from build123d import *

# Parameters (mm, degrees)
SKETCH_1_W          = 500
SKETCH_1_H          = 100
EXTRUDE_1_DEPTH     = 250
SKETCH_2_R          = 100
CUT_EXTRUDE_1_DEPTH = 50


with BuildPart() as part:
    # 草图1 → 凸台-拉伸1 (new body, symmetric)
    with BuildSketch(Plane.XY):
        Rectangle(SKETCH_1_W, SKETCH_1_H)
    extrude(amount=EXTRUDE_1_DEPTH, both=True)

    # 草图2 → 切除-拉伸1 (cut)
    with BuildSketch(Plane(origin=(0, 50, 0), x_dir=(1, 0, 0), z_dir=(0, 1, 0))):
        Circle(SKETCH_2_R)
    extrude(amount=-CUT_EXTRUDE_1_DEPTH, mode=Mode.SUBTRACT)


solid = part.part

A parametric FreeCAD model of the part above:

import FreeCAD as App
import Part
import Sketcher
from FreeCAD import Vector
Q = App.Units.Quantity

doc = App.newDocument("Part")
params = doc.addObject("Spreadsheet::Sheet", "Params")
for row, (alias, value) in enumerate([
    ("sketch1_width", "500 mm"),
    ("sketch1_height", "100 mm"),
    ("pad1_length", "500 mm"),
    ("sketch2_diameter", "200 mm"),
    ("pocket1_length", "50 mm"),
], start=1):
    params.set(f"A{row}", alias)
    params.set(f"B{row}", "=" + value)
    params.setAlias(f"B{row}", alias)

body = doc.addObject("PartDesign::Body", "Body")

# Sketch on XY plane
sketch1 = doc.addObject("Sketcher::SketchObject", "Sketch")
body.addObject(sketch1)
sketch1.AttachmentSupport = (doc.XY_Plane, [""])
sketch1.MapMode = "FlatFace"
sketch1.addGeometry(Part.LineSegment(Vector(-250, 50, 0), Vector(-250, -50, 0)), False)
sketch1.addGeometry(Part.LineSegment(Vector(-250, -50, 0), Vector(250, -50, 0)), False)
sketch1.addGeometry(Part.LineSegment(Vector(250, -50, 0), Vector(250, 50, 0)), False)
sketch1.addGeometry(Part.LineSegment(Vector(250, 50, 0), Vector(-250, 50, 0)), False)
sketch1.addConstraint(Sketcher.Constraint("Coincident", 0, 2, 1, 1))
sketch1.addConstraint(Sketcher.Constraint("Coincident", 1, 2, 2, 1))
sketch1.addConstraint(Sketcher.Constraint("Coincident", 2, 2, 3, 1))
sketch1.addConstraint(Sketcher.Constraint("Coincident", 3, 2, 0, 1))
sketch1.addConstraint(Sketcher.Constraint("Vertical", 0))
sketch1.addConstraint(Sketcher.Constraint("Horizontal", 1))
sketch1.addConstraint(Sketcher.Constraint("Vertical", 2))
sketch1.addConstraint(Sketcher.Constraint("Horizontal", 3))
sketch1.addConstraint(Sketcher.Constraint("Symmetric", 0, 2, 2, 2, -1, 1))
sketch1.addConstraint(Sketcher.Constraint("DistanceX", 1, 1, 1, 2, Q("500 mm")))
sketch1.addConstraint(Sketcher.Constraint("DistanceY", 0, 2, 0, 1, Q("100 mm")))
sketch1.setExpression("Constraints[9]", "Params.sketch1_width")
sketch1.setExpression("Constraints[10]", "Params.sketch1_height")
pad1 = doc.addObject("PartDesign::Pad", "Pad")
body.addObject(pad1)
pad1.Profile = sketch1
pad1.setExpression("Length", "Params.pad1_length")
pad1.Midplane = True

# Sketch on XZ plane
sketch2 = doc.addObject("Sketcher::SketchObject", "Sketch001")
body.addObject(sketch2)
sketch2.AttachmentSupport = (doc.XZ_Plane, [""])
sketch2.MapMode = "FlatFace"
sketch2.AttachmentOffset = App.Placement(Vector(0, 0, -50), App.Rotation())
sketch2.addGeometry(Part.Circle(Vector(0, 0, 0), Vector(0, 0, 1), 100), False)
sketch2.addConstraint(Sketcher.Constraint("Coincident", 0, 3, -1, 1))
sketch2.addConstraint(Sketcher.Constraint("Diameter", 0, Q("200 mm")))
sketch2.setExpression("Constraints[1]", "Params.sketch2_diameter")
pocket1 = doc.addObject("PartDesign::Pocket", "Pocket")
body.addObject(pocket1)
pocket1.Profile = sketch2
pocket1.setExpression("Length", "Params.pocket1_length")
pocket1.Reversed = True

doc.recompute()
